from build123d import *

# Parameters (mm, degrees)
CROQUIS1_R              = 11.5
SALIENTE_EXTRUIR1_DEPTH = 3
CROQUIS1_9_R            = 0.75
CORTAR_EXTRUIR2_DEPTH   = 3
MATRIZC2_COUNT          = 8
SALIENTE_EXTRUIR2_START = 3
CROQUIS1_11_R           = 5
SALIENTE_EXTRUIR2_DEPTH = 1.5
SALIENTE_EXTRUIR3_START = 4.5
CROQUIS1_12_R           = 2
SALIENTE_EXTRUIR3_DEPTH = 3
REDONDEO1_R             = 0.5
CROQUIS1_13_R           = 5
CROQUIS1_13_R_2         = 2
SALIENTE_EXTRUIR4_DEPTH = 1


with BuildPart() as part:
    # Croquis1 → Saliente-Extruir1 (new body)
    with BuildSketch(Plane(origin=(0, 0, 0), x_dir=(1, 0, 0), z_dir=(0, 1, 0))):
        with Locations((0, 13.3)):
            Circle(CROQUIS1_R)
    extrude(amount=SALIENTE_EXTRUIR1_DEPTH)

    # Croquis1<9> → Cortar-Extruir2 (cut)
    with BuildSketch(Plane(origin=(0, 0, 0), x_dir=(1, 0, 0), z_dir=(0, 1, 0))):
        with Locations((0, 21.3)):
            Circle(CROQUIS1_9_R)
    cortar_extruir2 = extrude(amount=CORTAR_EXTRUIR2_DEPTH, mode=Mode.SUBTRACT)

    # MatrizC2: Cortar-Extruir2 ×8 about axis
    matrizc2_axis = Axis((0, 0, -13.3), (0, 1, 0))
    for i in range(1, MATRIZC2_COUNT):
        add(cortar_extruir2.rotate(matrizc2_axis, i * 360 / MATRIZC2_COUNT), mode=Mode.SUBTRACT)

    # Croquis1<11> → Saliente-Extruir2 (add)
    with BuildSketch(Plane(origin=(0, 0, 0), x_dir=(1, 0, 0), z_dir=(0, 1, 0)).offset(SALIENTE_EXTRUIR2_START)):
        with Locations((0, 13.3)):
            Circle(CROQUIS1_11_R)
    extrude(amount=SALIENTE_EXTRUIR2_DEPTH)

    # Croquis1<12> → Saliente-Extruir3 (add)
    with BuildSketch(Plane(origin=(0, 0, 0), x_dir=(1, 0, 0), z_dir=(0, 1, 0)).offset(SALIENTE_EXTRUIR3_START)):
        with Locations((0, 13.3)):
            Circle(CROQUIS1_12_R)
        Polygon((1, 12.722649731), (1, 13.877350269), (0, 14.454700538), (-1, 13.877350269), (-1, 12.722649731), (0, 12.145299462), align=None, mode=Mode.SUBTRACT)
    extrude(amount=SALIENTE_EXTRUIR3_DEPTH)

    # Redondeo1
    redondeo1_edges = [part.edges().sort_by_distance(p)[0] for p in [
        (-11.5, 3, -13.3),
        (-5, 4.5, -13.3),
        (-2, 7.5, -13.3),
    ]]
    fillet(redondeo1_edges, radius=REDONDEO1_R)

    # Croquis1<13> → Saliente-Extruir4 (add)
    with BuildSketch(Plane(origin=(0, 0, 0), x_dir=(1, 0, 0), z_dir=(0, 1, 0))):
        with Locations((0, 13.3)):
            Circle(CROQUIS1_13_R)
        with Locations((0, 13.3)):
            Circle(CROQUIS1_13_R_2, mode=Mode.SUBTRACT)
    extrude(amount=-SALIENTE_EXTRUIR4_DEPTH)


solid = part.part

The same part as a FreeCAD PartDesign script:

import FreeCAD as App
import Part
import Sketcher
from FreeCAD import Vector
Q = App.Units.Quantity


def edges_at(feature, points):
    """Names of the edges that pass closest to the given points."""
    edges = feature.Shape.Edges
    near = lambda p: min(range(len(edges)), key=lambda i: edges[i].distToShape(Part.Vertex(*p))[0])
    return sorted({f"Edge{near(p) + 1}" for p in points})


def add_polygon(sketch, points):
    """Adds a closed chain of lines whose ends are joined by coincident constraints."""
    first, n = sketch.GeometryCount, len(points)
    for a, b in zip(points, points[1:] + points[:1]):
        sketch.addGeometry(Part.LineSegment(App.Vector(*a, 0), App.Vector(*b, 0)), False)
    for i in range(n):
        sketch.addConstraint(Sketcher.Constraint("Coincident", first + i, 2, first + (i + 1) % n, 1))

doc = App.newDocument("Part")
body = doc.addObject("PartDesign::Body", "Body")

# Sketch on XZ plane
sketch1 = doc.addObject("Sketcher::SketchObject", "Sketch")
body.addObject(sketch1)
sketch1.AttachmentSupport = (doc.XZ_Plane, [""])
sketch1.MapMode = "FlatFace"
sketch1.addGeometry(Part.Circle(Vector(0, -13.3, 0), Vector(0, 0, 1), 11.5), False)
sketch1.addConstraint(Sketcher.Constraint("PointOnObject", 0, 3, -2))
sketch1.addConstraint(Sketcher.Constraint("Diameter", 0, Q("23 mm")))
sketch1.addConstraint(Sketcher.Constraint("DistanceY", 0, 3, -1, 1, Q("13.3 mm")))
pad1 = doc.addObject("PartDesign::Pad", "Pad")
body.addObject(pad1)
pad1.Profile = sketch1
pad1.Length = 3
pad1.Reversed = True

# Sketch on XZ plane
sketch2 = doc.addObject("Sketcher::SketchObject", "Sketch001")
body.addObject(sketch2)
sketch2.AttachmentSupport = (doc.XZ_Plane, [""])
sketch2.MapMode = "FlatFace"
sketch2.addGeometry(Part.Circle(Vector(0, -21.3, 0), Vector(0, 0, 1), 0.75), False)
sketch2.addConstraint(Sketcher.Constraint("PointOnObject", 0, 3, -2))
sketch2.addConstraint(Sketcher.Constraint("Diameter", 0, Q("1.5 mm")))
sketch2.addConstraint(Sketcher.Constraint("DistanceY", 0, 3, -1, 1, Q("21.3 mm")))
pocket1 = doc.addObject("PartDesign::Pocket", "Pocket")
body.addObject(pocket1)
pocket1.Profile = sketch2
pocket1.Length = 3
doc.recompute()

datumline = doc.addObject("PartDesign::Line", "DatumLine")
body.addObject(datumline)
datumline.Placement = App.Placement(Vector(0, 0, -13.3), App.Rotation(Vector(0, 0, 1), Vector(0, 1, 0)))
polarpattern = doc.addObject("PartDesign::PolarPattern", "PolarPattern")
body.addObject(polarpattern)
polarpattern.Originals = [pocket1]
polarpattern.Axis = (datumline, [""])
polarpattern.Angle = 360
polarpattern.Occurrences = 8
body.Tip = polarpattern

# Sketch on XZ plane
sketch3 = doc.addObject("Sketcher::SketchObject", "Sketch002")
body.addObject(sketch3)
sketch3.AttachmentSupport = (doc.XZ_Plane, [""])
sketch3.MapMode = "FlatFace"
sketch3.AttachmentOffset = App.Placement(Vector(0, 0, -3), App.Rotation())
sketch3.addGeometry(Part.Circle(Vector(0, -13.3, 0), Vector(0, 0, 1), 5), False)
sketch3.addConstraint(Sketcher.Constraint("PointOnObject", 0, 3, -2))
sketch3.addConstraint(Sketcher.Constraint("Diameter", 0, Q("10 mm")))
sketch3.addConstraint(Sketcher.Constraint("DistanceY", 0, 3, -1, 1, Q("13.3 mm")))
pad2 = doc.addObject("PartDesign::Pad", "Pad001")
body.addObject(pad2)
pad2.Profile = sketch3
pad2.Length = 1.5
pad2.Reversed = True

# Sketch on XZ plane
sketch4 = doc.addObject("Sketcher::SketchObject", "Sketch003")
body.addObject(sketch4)
sketch4.AttachmentSupport = (doc.XZ_Plane, [""])
sketch4.MapMode = "FlatFace"
sketch4.AttachmentOffset = App.Placement(Vector(0, 0, -4.5), App.Rotation())
sketch4.addGeometry(Part.Circle(Vector(0, -13.3, 0), Vector(0, 0, 1), 2), False)  # 0
add_polygon(sketch4, [(1, -13.87735), (1, -12.72265), (0, -12.145299), (-1, -12.72265), (-1, -13.87735), (0, -14.454701)])  # lines 1-6
sketch4.addConstraint(Sketcher.Constraint("Vertical", 1))
sketch4.addConstraint(Sketcher.Constraint("Vertical", 4))
sketch4.addConstraint(Sketcher.Constraint("Symmetric", 1, 2, 3, 2, -2))
sketch4.addConstraint(Sketcher.Constraint("PointOnObject", 0, 3, -2))
sketch4.addConstraint(Sketcher.Constraint("PointOnObject", 2, 2, -2))
sketch4.addConstraint(Sketcher.Constraint("PointOnObject", 5, 2, -2))
sketch4.addConstraint(Sketcher.Constraint("Parallel", 2, 5))
sketch4.addConstraint(Sketcher.Constraint("Parallel", 3, 6))
sketch4.addConstraint(Sketcher.Constraint("Diameter", 0, Q("4 mm")))
sketch4.addConstraint(Sketcher.Constraint("Angle", 2, Q("150 deg")))
sketch4.addConstraint(Sketcher.Constraint("DistanceX", -1, 1, 1, 2, Q("1 mm")))
sketch4.addConstraint(Sketcher.Constraint("DistanceY", 0, 3, -1, 1, Q("13.3 mm")))
sketch4.addConstraint(Sketcher.Constraint("DistanceY", 1, 1, 1, 2, Q("1.154701 mm")))
sketch4.addConstraint(Sketcher.Constraint("DistanceY", 2, 2, -1, 1, Q("12.145299 mm")))
pad3 = doc.addObject("PartDesign::Pad", "Pad002")
body.addObject(pad3)
pad3.Profile = sketch4
pad3.Length = 3
pad3.Reversed = True
doc.recompute()

fillet = doc.addObject("PartDesign::Fillet", "Fillet")
body.addObject(fillet)
fillet.Base = (pad3, edges_at(pad3, [(-11.5, 3, -13.3), (-5, 4.5, -13.3), (-2, 7.5, -13.3)]))
fillet.Radius = 0.5

# Sketch on XZ plane
sketch5 = doc.addObject("Sketcher::SketchObject", "Sketch004")
body.addObject(sketch5)
sketch5.AttachmentSupport = (doc.XZ_Plane, [""])
sketch5.MapMode = "FlatFace"
sketch5.addGeometry(Part.Circle(Vector(0, -13.3, 0), Vector(0, 0, 1), 5), False)
sketch5.addGeometry(Part.Circle(Vector(0, -13.3, 0), Vector(0, 0, 1), 2), False)
sketch5.addConstraint(Sketcher.Constraint("Coincident", 1, 3, 0, 3))
sketch5.addConstraint(Sketcher.Constraint("PointOnObject", 0, 3, -2))
sketch5.addConstraint(Sketcher.Constraint("Diameter", 0, Q("10 mm")))
sketch5.addConstraint(Sketcher.Constraint("Diameter", 1, Q("4 mm")))
sketch5.addConstraint(Sketcher.Constraint("DistanceY", 0, 3, -1, 1, Q("13.3 mm")))
pad4 = doc.addObject("PartDesign::Pad", "Pad003")
body.addObject(pad4)
pad4.Profile = sketch5
pad4.Length = 1

doc.recompute()
